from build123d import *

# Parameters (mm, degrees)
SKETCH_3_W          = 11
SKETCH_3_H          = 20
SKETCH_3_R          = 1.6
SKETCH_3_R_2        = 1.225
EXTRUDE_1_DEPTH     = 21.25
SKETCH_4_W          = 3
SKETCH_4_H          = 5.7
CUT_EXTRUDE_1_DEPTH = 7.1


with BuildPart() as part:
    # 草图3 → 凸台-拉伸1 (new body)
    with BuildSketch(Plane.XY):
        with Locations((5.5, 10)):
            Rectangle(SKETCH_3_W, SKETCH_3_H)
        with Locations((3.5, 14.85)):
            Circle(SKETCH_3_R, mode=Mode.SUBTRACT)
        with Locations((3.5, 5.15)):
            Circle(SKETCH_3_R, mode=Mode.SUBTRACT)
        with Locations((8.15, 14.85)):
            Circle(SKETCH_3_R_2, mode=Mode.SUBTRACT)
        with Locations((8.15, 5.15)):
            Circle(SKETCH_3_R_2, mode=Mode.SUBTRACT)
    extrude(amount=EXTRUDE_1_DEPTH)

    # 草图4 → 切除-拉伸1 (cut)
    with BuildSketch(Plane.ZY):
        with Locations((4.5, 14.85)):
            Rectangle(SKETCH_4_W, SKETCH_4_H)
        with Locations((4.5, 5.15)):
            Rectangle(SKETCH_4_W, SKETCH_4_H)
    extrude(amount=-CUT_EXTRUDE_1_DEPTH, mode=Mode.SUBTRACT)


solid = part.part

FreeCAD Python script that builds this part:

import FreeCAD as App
import Part
import Sketcher

V = App.Vector
Q = App.Units.Quantity

doc = App.newDocument("Part")
body = doc.addObject("PartDesign::Body", "Body")

# Sketch on XY plane
sketch1 = body.newObject("Sketcher::SketchObject", "Sketch")
sketch1.AttachmentSupport = (doc.getObject("XY_Plane"), [""])
sketch1.MapMode = "FlatFace"
sketch1.addGeometry(Part.LineSegment(V(0, 20, 0), V(0, 0, 0)), False)
sketch1.addGeometry(Part.LineSegment(V(0, 0, 0), V(11, 0, 0)), False)
sketch1.addGeometry(Part.LineSegment(V(11, 0, 0), V(11, 20, 0)), False)
sketch1.addGeometry(Part.LineSegment(V(11, 20, 0), V(0, 20, 0)), False)
sketch1.addGeometry(Part.Circle(V(3.5, 5.2, 0), V(0, 0, 1), 1.6), False)
sketch1.addGeometry(Part.Circle(V(8.2, 5.2, 0), V(0, 0, 1), 1.2), False)
sketch1.addGeometry(Part.Circle(V(3.5, 14.8, 0), V(0, 0, 1), 1.6), False)
sketch1.addGeometry(Part.Circle(V(8.2, 14.8, 0), V(0, 0, 1), 1.2), False)
sketch1.addConstraint(Sketcher.Constraint("Coincident", 0, 2, 1, 1))
sketch1.addConstraint(Sketcher.Constraint("Coincident", 1, 2, 2, 1))
sketch1.addConstraint(Sketcher.Constraint("Coincident", 2, 2, 3, 1))
sketch1.addConstraint(Sketcher.Constraint("Coincident", 3, 2, 0, 1))
sketch1.addConstraint(Sketcher.Constraint("Vertical", 0))
sketch1.addConstraint(Sketcher.Constraint("Horizontal", 1))
sketch1.addConstraint(Sketcher.Constraint("Vertical", 2))
sketch1.addConstraint(Sketcher.Constraint("Horizontal", 3))
sketch1.addConstraint(Sketcher.Constraint("Coincident", 0, 2, -1, 1))
sketch1.addConstraint(Sketcher.Constraint("Equal", 4, 6))
sketch1.addConstraint(Sketcher.Constraint("Equal", 5, 7))
sketch1.addConstraint(Sketcher.Constraint("Horizontal", 4, 3, 5, 3))
sketch1.addConstraint(Sketcher.Constraint("Horizontal", 6, 3, 7, 3))
sketch1.addConstraint(Sketcher.Constraint("Vertical", 4, 3, 6, 3))
sketch1.addConstraint(Sketcher.Constraint("Vertical", 5, 3, 7, 3))
sketch1.addConstraint(Sketcher.Constraint("Diameter", 4, Q("3.2 mm")))
sketch1.addConstraint(Sketcher.Constraint("Diameter", 5, Q("2.45 mm")))
sketch1.addConstraint(Sketcher.Constraint("DistanceX", 1, 1, 1, 2, Q("11 mm")))
sketch1.addConstraint(Sketcher.Constraint("DistanceY", 0, 2, 0, 1, Q("20 mm")))
sketch1.addConstraint(Sketcher.Constraint("DistanceX", -1, 1, 4, 3, Q("3.5 mm")))
sketch1.addConstraint(Sketcher.Constraint("DistanceY", 4, 3, 6, 3, Q("9.7 mm")))
sketch1.addConstraint(Sketcher.Constraint("DistanceY", -1, 1, 4, 3, Q("5.15 mm")))
sketch1.addConstraint(Sketcher.Constraint("DistanceX", -1, 1, 5, 3, Q("8.15 mm")))
pad1 = body.newObject("PartDesign::Pad", "Pad")
pad1.Profile = sketch1
pad1.Length = 21.25

# Sketch on YZ plane
sketch2 = body.newObject("Sketcher::SketchObject", "Sketch001")
sketch2.AttachmentSupport = (doc.getObject("YZ_Plane"), [""])
sketch2.MapMode = "FlatFace"
sketch2.addGeometry(Part.LineSegment(V(17.7, 3, 0), V(12, 3, 0)), False)
sketch2.addGeometry(Part.LineSegment(V(12, 3, 0), V(12, 6, 0)), False)
sketch2.addGeometry(Part.LineSegment(V(12, 6, 0), V(17.7, 6, 0)), False)
sketch2.addGeometry(Part.LineSegment(V(17.7, 6, 0), V(17.7, 3, 0)), False)
sketch2.addGeometry(Part.LineSegment(V(8, 3, 0), V(2.3, 3, 0)), False)
sketch2.addGeometry(Part.LineSegment(V(2.3, 3, 0), V(2.3, 6, 0)), False)
sketch2.addGeometry(Part.LineSegment(V(2.3, 6, 0), V(8, 6, 0)), False)
sketch2.addGeometry(Part.LineSegment(V(8, 6, 0), V(8, 3, 0)), False)
sketch2.addConstraint(Sketcher.Constraint("Coincident", 0, 2, 1, 1))
sketch2.addConstraint(Sketcher.Constraint("Coincident", 1, 2, 2, 1))
sketch2.addConstraint(Sketcher.Constraint("Coincident", 2, 2, 3, 1))
sketch2.addConstraint(Sketcher.Constraint("Coincident", 3, 2, 0, 1))
sketch2.addConstraint(Sketcher.Constraint("Coincident", 4, 2, 5, 1))
sketch2.addConstraint(Sketcher.Constraint("Coincident", 5, 2, 6, 1))
sketch2.addConstraint(Sketcher.Constraint("Coincident", 6, 2, 7, 1))
sketch2.addConstraint(Sketcher.Constraint("Coincident", 7, 2, 4, 1))
sketch2.addConstraint(Sketcher.Constraint("Horizontal", 0))
sketch2.addConstraint(Sketcher.Constraint("Vertical", 1))
sketch2.addConstraint(Sketcher.Constraint("Horizontal", 2))
sketch2.addConstraint(Sketcher.Constraint("Vertical", 3))
sketch2.addConstraint(Sketcher.Constraint("Horizontal", 4))
sketch2.addConstraint(Sketcher.Constraint("Vertical", 5))
sketch2.addConstraint(Sketcher.Constraint("Horizontal", 6))
sketch2.addConstraint(Sketcher.Constraint("Vertical", 7))
sketch2.addConstraint(Sketcher.Constraint("Horizontal", 3, 2, 4, 2))
sketch2.addConstraint(Sketcher.Constraint("Horizontal", 2, 2, 5, 2))
sketch2.addConstraint(Sketcher.Constraint("Equal", 2, 4))
sketch2.addConstraint(Sketcher.Constraint("DistanceY", 1, 1, 1, 2, Q("3 mm")))
sketch2.addConstraint(Sketcher.Constraint("DistanceX", 0, 2, 0, 1, Q("5.7 mm")))
sketch2.addConstraint(Sketcher.Constraint("DistanceX", -1, 1, 0, 2, Q("12 mm")))
sketch2.addConstraint(Sketcher.Constraint("DistanceY", -1, 1, 0, 2, Q("3 mm")))
sketch2.addConstraint(Sketcher.Constraint("DistanceX", -1, 1, 6, 2, Q("8 mm")))
pocket1 = body.newObject("PartDesign::Pocket", "Pocket")
pocket1.Profile = sketch2
pocket1.Length = 7.1
pocket1.Reversed = True

doc.recompute()
